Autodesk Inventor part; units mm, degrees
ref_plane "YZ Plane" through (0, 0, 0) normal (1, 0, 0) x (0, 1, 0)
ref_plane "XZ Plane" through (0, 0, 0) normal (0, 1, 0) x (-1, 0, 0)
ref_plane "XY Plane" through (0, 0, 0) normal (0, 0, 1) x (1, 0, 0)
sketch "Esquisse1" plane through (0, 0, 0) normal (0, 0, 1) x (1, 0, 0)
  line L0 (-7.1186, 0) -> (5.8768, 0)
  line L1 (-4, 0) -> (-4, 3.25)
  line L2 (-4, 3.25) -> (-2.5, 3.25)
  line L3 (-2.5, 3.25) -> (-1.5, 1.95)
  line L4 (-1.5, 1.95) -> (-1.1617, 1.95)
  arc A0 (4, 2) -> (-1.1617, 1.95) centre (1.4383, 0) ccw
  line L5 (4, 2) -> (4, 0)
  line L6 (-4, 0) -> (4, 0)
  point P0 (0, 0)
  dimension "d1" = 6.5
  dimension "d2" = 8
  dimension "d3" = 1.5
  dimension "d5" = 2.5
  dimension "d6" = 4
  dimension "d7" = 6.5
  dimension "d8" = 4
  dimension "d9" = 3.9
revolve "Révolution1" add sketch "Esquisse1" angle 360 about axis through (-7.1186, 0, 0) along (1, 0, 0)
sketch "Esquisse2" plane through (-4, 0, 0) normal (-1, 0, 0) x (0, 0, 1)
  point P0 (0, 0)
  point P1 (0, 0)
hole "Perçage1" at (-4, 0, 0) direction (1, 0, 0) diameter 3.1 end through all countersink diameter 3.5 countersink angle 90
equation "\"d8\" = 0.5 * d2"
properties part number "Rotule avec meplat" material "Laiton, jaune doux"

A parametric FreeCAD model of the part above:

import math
import FreeCAD as App
import Part
import Sketcher
from FreeCAD import Vector
Q = App.Units.Quantity

doc = App.newDocument("Part")
body = doc.addObject("PartDesign::Body", "Body")

sketch1 = body.newObject("Sketcher::SketchObject", "Sketch")
sketch1.AttachmentSupport = (doc.getObject("XY_Plane"), [""])
sketch1.MapMode = "FlatFace"
sketch1.addGeometry(Part.LineSegment(Vector(-4, 3.25, 0), Vector(-4, 0, 0)), False)
sketch1.addGeometry(Part.LineSegment(Vector(-4, 0, 0), Vector(4, 0, 0)), False)
sketch1.addGeometry(Part.LineSegment(Vector(4, 0, 0), Vector(4, 2, 0)), False)
sketch1.addGeometry(Part.ArcOfCircle(Part.Circle(Vector(1.44, 0, 0), Vector(0, 0, 1), 3.25), math.radians(38), math.radians(143)), False)
sketch1.addGeometry(Part.LineSegment(Vector(-1.16, 1.95, 0), Vector(-1.5, 1.95, 0)), False)
sketch1.addGeometry(Part.LineSegment(Vector(-1.5, 1.95, 0), Vector(-2.5, 3.25, 0)), False)
sketch1.addGeometry(Part.LineSegment(Vector(-2.5, 3.25, 0), Vector(-4, 3.25, 0)), False)
sketch1.addConstraint(Sketcher.Constraint("Coincident", 0, 2, 1, 1))
sketch1.addConstraint(Sketcher.Constraint("Coincident", 1, 2, 2, 1))
sketch1.addConstraint(Sketcher.Constraint("Coincident", 2, 2, 3, 1))
sketch1.addConstraint(Sketcher.Constraint("Coincident", 3, 2, 4, 1))
sketch1.addConstraint(Sketcher.Constraint("Coincident", 4, 2, 5, 1))
sketch1.addConstraint(Sketcher.Constraint("Coincident", 5, 2, 6, 1))
sketch1.addConstraint(Sketcher.Constraint("Coincident", 6, 2, 0, 1))
sketch1.addConstraint(Sketcher.Constraint("Vertical", 0))
sketch1.addConstraint(Sketcher.Constraint("Horizontal", 1))
sketch1.addConstraint(Sketcher.Constraint("Vertical", 2))
sketch1.addConstraint(Sketcher.Constraint("Horizontal", 4))
sketch1.addConstraint(Sketcher.Constraint("Horizontal", 6))
sketch1.addConstraint(Sketcher.Constraint("Symmetric", 0, 2, 1, 2, -1, 1))
sketch1.addConstraint(Sketcher.Constraint("PointOnObject", 3, 3, -1))
sketch1.addConstraint(Sketcher.Constraint("DistanceX", 1, 1, 1, 2, Q("8 mm")))
sketch1.addConstraint(Sketcher.Constraint("Radius", 3, Q("3.25 mm")))
sketch1.addConstraint(Sketcher.Constraint("DistanceX", 6, 2, 6, 1, Q("1.5 mm")))
sketch1.addConstraint(Sketcher.Constraint("DistanceX", 4, 2, -1, 1, Q("1.5 mm")))
sketch1.addConstraint(Sketcher.Constraint("DistanceY", 2, 1, 2, 2, Q("2 mm")))
sketch1.addConstraint(Sketcher.Constraint("DistanceY", 0, 2, 0, 1, Q("3.25 mm")))
sketch1.addConstraint(Sketcher.Constraint("DistanceX", 3, 2, 3, 3, Q("2.6 mm")))
revolution = body.newObject("PartDesign::Revolution", "Revolution")
revolution.Profile = sketch1
revolution.ReferenceAxis = (sketch1, ["H_Axis"])
revolution.Angle = 360

sketch2 = body.newObject("Sketcher::SketchObject", "Sketch001")
sketch2.AttachmentSupport = (doc.getObject("YZ_Plane"), [""])
sketch2.MapMode = "FlatFace"
sketch2.AttachmentOffset = App.Placement(Vector(0, 0, -4), App.Rotation())
sketch2.addGeometry(Part.Circle(Vector(0, 0, 0), Vector(0, 0, 1), 1.6), False)
sketch2.addConstraint(Sketcher.Constraint("Coincident", 0, 3, -1, 1))
sketch2.addConstraint(Sketcher.Constraint("Diameter", 0, Q("3.1 mm")))
doc.recompute()
hole = body.newObject("PartDesign::Hole", "Hole")
hole.Profile = sketch2
hole.ThreadType = "None"
hole.Diameter = 3.1
hole.DepthType = "ThroughAll"
hole.HoleCutType = "Countersink"
hole.HoleCutDiameter = 3.5
hole.HoleCutCountersinkAngle = 90
hole.Reversed = True

doc.recompute()
